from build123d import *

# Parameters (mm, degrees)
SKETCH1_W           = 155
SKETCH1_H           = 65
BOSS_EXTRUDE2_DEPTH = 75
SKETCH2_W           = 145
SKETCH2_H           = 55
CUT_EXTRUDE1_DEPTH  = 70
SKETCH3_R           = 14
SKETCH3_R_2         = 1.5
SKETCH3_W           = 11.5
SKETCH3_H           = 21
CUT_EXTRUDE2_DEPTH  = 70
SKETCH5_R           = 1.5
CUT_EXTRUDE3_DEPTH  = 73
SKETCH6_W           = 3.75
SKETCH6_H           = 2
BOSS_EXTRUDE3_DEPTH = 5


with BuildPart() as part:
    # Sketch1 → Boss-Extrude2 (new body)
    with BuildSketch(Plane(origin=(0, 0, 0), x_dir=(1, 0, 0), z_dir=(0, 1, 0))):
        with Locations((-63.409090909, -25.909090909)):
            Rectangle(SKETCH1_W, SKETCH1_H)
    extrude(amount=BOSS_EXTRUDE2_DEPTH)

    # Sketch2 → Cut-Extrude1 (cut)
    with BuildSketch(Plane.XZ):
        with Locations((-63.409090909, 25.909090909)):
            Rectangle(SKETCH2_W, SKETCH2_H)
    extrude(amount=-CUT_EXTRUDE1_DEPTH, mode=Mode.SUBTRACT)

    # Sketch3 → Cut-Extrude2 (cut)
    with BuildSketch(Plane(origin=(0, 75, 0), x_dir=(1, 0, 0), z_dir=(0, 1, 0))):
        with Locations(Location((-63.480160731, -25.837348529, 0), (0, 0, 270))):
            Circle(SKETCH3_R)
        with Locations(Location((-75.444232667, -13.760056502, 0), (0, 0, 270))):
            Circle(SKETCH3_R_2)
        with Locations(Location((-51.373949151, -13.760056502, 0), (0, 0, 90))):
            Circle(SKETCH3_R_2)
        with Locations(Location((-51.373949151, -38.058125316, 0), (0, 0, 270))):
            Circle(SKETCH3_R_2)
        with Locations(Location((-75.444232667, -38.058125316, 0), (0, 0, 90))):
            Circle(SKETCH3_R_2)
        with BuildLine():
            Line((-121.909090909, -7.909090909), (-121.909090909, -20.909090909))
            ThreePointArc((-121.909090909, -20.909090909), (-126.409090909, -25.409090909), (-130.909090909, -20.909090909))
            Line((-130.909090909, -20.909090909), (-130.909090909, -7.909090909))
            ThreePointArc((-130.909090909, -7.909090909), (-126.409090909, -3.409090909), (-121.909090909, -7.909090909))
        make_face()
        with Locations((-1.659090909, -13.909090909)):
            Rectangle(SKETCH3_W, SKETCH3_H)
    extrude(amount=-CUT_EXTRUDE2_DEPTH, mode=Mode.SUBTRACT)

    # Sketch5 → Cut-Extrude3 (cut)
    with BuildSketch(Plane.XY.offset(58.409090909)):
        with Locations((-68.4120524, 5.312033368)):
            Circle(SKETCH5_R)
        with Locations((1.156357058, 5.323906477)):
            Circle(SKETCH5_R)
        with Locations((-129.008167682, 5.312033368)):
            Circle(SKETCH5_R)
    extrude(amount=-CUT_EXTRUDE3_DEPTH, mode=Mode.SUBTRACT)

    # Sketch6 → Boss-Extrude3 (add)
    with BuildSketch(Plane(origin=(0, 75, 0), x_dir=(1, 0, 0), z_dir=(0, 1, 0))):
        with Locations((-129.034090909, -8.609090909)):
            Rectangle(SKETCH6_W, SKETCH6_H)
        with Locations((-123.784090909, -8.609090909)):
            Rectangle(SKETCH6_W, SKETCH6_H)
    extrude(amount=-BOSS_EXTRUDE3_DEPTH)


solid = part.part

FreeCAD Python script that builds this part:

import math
import FreeCAD as App
import Part
import Sketcher
Q = App.Units.Quantity


def add_polygon(sketch, points):
    """Adds a closed chain of lines whose ends are joined by coincident constraints."""
    first, n = sketch.GeometryCount, len(points)
    for a, b in zip(points, points[1:] + points[:1]):
        sketch.addGeometry(Part.LineSegment(App.Vector(*a, 0), App.Vector(*b, 0)), False)
    for i in range(n):
        sketch.addConstraint(Sketcher.Constraint("Coincident", first + i, 2, first + (i + 1) % n, 1))

doc = App.newDocument("Part")
body = doc.addObject("PartDesign::Body", "Body")

sketch1 = body.newObject("Sketcher::SketchObject", "Sketch")
sketch1.AttachmentSupport = (doc.getObject("XZ_Plane"), [""])
sketch1.MapMode = "FlatFace"
add_polygon(sketch1, [(-141, -7), (-141, 58), (14, 58), (14, -7)])
sketch1.addConstraint([
    Sketcher.Constraint("Vertical", 0),
    Sketcher.Constraint("Horizontal", 1),
    Sketcher.Constraint("Vertical", 2),
    Sketcher.Constraint("Horizontal", 3),
    Sketcher.Constraint("DistanceX", 1, 1, 1, 2, Q("155 mm")),
    Sketcher.Constraint("DistanceY", 0, 1, 0, 2, Q("65 mm")),
    Sketcher.Constraint("DistanceX", 0, 2, -1, 1, Q("140.909091 mm")),
    Sketcher.Constraint("DistanceY", -1, 1, 0, 2, Q("58.409091 mm")),
])
pad1 = body.newObject("PartDesign::Pad", "Pad")
pad1.Profile = sketch1
pad1.Length = 75
pad1.Reversed = True

sketch2 = body.newObject("Sketcher::SketchObject", "Sketch001")
sketch2.AttachmentSupport = (doc.getObject("XZ_Plane"), [""])
sketch2.MapMode = "FlatFace"
add_polygon(sketch2, [(-136, 53), (-136, -2), (9, -2), (9, 53)])
sketch2.addConstraint([
    Sketcher.Constraint("Vertical", 0),
    Sketcher.Constraint("Horizontal", 1),
    Sketcher.Constraint("Vertical", 2),
    Sketcher.Constraint("Horizontal", 3),
    Sketcher.Constraint("DistanceX", 1, 1, 1, 2, Q("145 mm")),
    Sketcher.Constraint("DistanceY", 0, 2, 0, 1, Q("55 mm")),
    Sketcher.Constraint("DistanceX", 0, 2, -1, 1, Q("135.909091 mm")),
    Sketcher.Constraint("DistanceY", 0, 2, -1, 1, Q("1.590909 mm")),
])
pocket1 = body.newObject("PartDesign::Pocket", "Pocket")
pocket1.Profile = sketch2
pocket1.Length = 70

sketch3 = body.newObject("Sketcher::SketchObject", "Sketch002")
sketch3.AttachmentSupport = (doc.getObject("XZ_Plane"), [""])
sketch3.MapMode = "FlatFace"
sketch3.AttachmentOffset = App.Placement(App.Vector(0, 0, -75), App.Rotation())
sketch3.addGeometry(Part.Circle(App.Vector(-63.5, 25.8, 0), App.Vector(0, 0, 1), 14), False)
sketch3.addGeometry(Part.Circle(App.Vector(-75.4, 13.8, 0), App.Vector(0, 0, 1), 1.5), False)
sketch3.addGeometry(Part.Circle(App.Vector(-51.4, 13.8, 0), App.Vector(0, 0, 1), 1.5), False)
sketch3.addGeometry(Part.Circle(App.Vector(-51.4, 38.1, 0), App.Vector(0, 0, 1), 1.5), False)
sketch3.addGeometry(Part.Circle(App.Vector(-75.4, 38.1, 0), App.Vector(0, 0, 1), 1.5), False)
sketch3.addGeometry(Part.LineSegment(App.Vector(-121.9, 20.9, 0), App.Vector(-121.9, 7.9, 0)), False)
sketch3.addGeometry(Part.ArcOfCircle(Part.Circle(App.Vector(-126.4, 7.9, 0), App.Vector(0, 0, 1), 4.5), math.radians(180), math.radians(360)), False)
sketch3.addGeometry(Part.LineSegment(App.Vector(-130.9, 7.9, 0), App.Vector(-130.9, 20.9, 0)), False)
sketch3.addGeometry(Part.ArcOfCircle(Part.Circle(App.Vector(-126.4, 20.9, 0), App.Vector(0, 0, 1), 4.5), math.radians(0), math.radians(180)), False)
add_polygon(sketch3, [(-7.4, 3.4), (-7.4, 24.4), (4.1, 24.4), (4.1, 3.4)])
sketch3.addConstraint([
    Sketcher.Constraint("Tangent", 5, 2, 6, 2),
    Sketcher.Constraint("Tangent", 6, 1, 7, 1),
    Sketcher.Constraint("Tangent", 7, 2, 8, 2),
    Sketcher.Constraint("Tangent", 8, 1, 5, 1),
    Sketcher.Constraint("Vertical", 5),
    Sketcher.Constraint("Vertical", 7),
    Sketcher.Constraint("Vertical", 9),
    Sketcher.Constraint("Horizontal", 10),
    Sketcher.Constraint("Vertical", 11),
    Sketcher.Constraint("Horizontal", 12),
    Sketcher.Constraint("Equal", 1, 2),
    Sketcher.Constraint("Equal", 2, 3),
    Sketcher.Constraint("Equal", 3, 4),
    Sketcher.Constraint("Horizontal", 1, 3, 2, 3),
    Sketcher.Constraint("Horizontal", 3, 3, 4, 3),
    Sketcher.Constraint("Vertical", 2, 3, 3, 3),
    Sketcher.Constraint("Vertical", 1, 3, 4, 3),
    Sketcher.Constraint("Diameter", 0, Q("28 mm")),
    Sketcher.Constraint("Diameter", 1, Q("3 mm")),
    Sketcher.Constraint("Radius", 6, Q("4.5 mm")),
    Sketcher.Constraint("DistanceY", 5, 2, 5, 1, Q("13 mm")),
    Sketcher.Constraint("DistanceY", 9, 1, 9, 2, Q("21 mm")),
    Sketcher.Constraint("DistanceX", 10, 1, 10, 2, Q("11.5 mm")),
    Sketcher.Constraint("DistanceX", 0, 3, -1, 1, Q("63.480161 mm")),
    Sketcher.Constraint("DistanceY", -1, 1, 0, 3, Q("25.837349 mm")),
    Sketcher.Constraint("DistanceX", 2, 3, -1, 1, Q("51.373949 mm")),
    Sketcher.Constraint("DistanceX", 6, 3, -1, 1, Q("126.409091 mm")),
    Sketcher.Constraint("DistanceY", -1, 1, 6, 3, Q("7.909091 mm")),
    Sketcher.Constraint("DistanceX", 9, 2, -1, 1, Q("7.409091 mm")),
    Sketcher.Constraint("DistanceY", -1, 1, 9, 2, Q("24.409091 mm")),
    Sketcher.Constraint("DistanceX", 1, 3, 0, 3, Q("11.964072 mm")),
    Sketcher.Constraint("DistanceY", 2, 3, 3, 3, Q("24.298069 mm")),
    Sketcher.Constraint("DistanceY", -1, 1, 1, 3, Q("13.760057 mm")),
])
pocket2 = body.newObject("PartDesign::Pocket", "Pocket001")
pocket2.Profile = sketch3
pocket2.Length = 70
pocket2.Reversed = True

sketch4 = body.newObject("Sketcher::SketchObject", "Sketch003")
sketch4.AttachmentSupport = (doc.getObject("XY_Plane"), [""])
sketch4.MapMode = "FlatFace"
sketch4.AttachmentOffset = App.Placement(App.Vector(0, 0, 58.409091), App.Rotation())
sketch4.addGeometry([
    Part.Circle(App.Vector(-68.4, 5.3, 0), App.Vector(0, 0, 1), 1.5),
    Part.Circle(App.Vector(1.2, 5.3, 0), App.Vector(0, 0, 1), 1.5),
    Part.Circle(App.Vector(-129, 5.3, 0), App.Vector(0, 0, 1), 1.5),
], False)
sketch4.addConstraint([
    Sketcher.Constraint("Equal", 0, 1),
    Sketcher.Constraint("Equal", 1, 2),
    Sketcher.Constraint("Horizontal", 0, 3, 2, 3),
    Sketcher.Constraint("Diameter", 0, Q("3 mm")),
    Sketcher.Constraint("DistanceX", 0, 3, 1, 3, Q("69.568409 mm")),
    Sketcher.Constraint("DistanceX", 0, 3, -1, 1, Q("68.412052 mm")),
    Sketcher.Constraint("DistanceY", -1, 1, 0, 3, Q("5.312033 mm")),
    Sketcher.Constraint("DistanceY", -1, 1, 1, 3, Q("5.323906 mm")),
    Sketcher.Constraint("DistanceX", 2, 3, -1, 1, Q("129.008168 mm")),
])
pocket3 = body.newObject("PartDesign::Pocket", "Pocket002")
pocket3.Profile = sketch4
pocket3.Length = 73

sketch5 = body.newObject("Sketcher::SketchObject", "Sketch004")
sketch5.AttachmentSupport = (doc.getObject("XZ_Plane"), [""])
sketch5.MapMode = "FlatFace"
sketch5.AttachmentOffset = App.Placement(App.Vector(0, 0, -75), App.Rotation())
add_polygon(sketch5, [(-130.9, 7.6), (-130.9, 9.6), (-127.2, 9.6), (-127.2, 7.6)])
add_polygon(sketch5, [(-125.7, 7.6), (-125.7, 9.6), (-121.9, 9.6), (-121.9, 7.6)])
sketch5.addConstraint([
    Sketcher.Constraint("Vertical", 0),
    Sketcher.Constraint("Horizontal", 1),
    Sketcher.Constraint("Vertical", 2),
    Sketcher.Constraint("Horizontal", 3),
    Sketcher.Constraint("Vertical", 4),
    Sketcher.Constraint("Horizontal", 5),
    Sketcher.Constraint("Vertical", 6),
    Sketcher.Constraint("Horizontal", 7),
    Sketcher.Constraint("Horizontal", 1, 2, 4, 2),
    Sketcher.Constraint("Horizontal", 3, 2, 6, 2),
    Sketcher.Constraint("Equal", 3, 5),
    Sketcher.Constraint("DistanceY", 0, 1, 0, 2, Q("2 mm")),
    Sketcher.Constraint("DistanceX", 0, 2, 5, 2, Q("9 mm")),
    Sketcher.Constraint("DistanceX", 1, 1, 1, 2, Q("3.75 mm")),
    Sketcher.Constraint("DistanceX", 0, 2, -1, 1, Q("130.909091 mm")),
    Sketcher.Constraint("DistanceY", -1, 1, 0, 2, Q("9.609091 mm")),
])
pad2 = body.newObject("PartDesign::Pad", "Pad001")
pad2.Profile = sketch5
pad2.Length = 5

doc.recompute()
